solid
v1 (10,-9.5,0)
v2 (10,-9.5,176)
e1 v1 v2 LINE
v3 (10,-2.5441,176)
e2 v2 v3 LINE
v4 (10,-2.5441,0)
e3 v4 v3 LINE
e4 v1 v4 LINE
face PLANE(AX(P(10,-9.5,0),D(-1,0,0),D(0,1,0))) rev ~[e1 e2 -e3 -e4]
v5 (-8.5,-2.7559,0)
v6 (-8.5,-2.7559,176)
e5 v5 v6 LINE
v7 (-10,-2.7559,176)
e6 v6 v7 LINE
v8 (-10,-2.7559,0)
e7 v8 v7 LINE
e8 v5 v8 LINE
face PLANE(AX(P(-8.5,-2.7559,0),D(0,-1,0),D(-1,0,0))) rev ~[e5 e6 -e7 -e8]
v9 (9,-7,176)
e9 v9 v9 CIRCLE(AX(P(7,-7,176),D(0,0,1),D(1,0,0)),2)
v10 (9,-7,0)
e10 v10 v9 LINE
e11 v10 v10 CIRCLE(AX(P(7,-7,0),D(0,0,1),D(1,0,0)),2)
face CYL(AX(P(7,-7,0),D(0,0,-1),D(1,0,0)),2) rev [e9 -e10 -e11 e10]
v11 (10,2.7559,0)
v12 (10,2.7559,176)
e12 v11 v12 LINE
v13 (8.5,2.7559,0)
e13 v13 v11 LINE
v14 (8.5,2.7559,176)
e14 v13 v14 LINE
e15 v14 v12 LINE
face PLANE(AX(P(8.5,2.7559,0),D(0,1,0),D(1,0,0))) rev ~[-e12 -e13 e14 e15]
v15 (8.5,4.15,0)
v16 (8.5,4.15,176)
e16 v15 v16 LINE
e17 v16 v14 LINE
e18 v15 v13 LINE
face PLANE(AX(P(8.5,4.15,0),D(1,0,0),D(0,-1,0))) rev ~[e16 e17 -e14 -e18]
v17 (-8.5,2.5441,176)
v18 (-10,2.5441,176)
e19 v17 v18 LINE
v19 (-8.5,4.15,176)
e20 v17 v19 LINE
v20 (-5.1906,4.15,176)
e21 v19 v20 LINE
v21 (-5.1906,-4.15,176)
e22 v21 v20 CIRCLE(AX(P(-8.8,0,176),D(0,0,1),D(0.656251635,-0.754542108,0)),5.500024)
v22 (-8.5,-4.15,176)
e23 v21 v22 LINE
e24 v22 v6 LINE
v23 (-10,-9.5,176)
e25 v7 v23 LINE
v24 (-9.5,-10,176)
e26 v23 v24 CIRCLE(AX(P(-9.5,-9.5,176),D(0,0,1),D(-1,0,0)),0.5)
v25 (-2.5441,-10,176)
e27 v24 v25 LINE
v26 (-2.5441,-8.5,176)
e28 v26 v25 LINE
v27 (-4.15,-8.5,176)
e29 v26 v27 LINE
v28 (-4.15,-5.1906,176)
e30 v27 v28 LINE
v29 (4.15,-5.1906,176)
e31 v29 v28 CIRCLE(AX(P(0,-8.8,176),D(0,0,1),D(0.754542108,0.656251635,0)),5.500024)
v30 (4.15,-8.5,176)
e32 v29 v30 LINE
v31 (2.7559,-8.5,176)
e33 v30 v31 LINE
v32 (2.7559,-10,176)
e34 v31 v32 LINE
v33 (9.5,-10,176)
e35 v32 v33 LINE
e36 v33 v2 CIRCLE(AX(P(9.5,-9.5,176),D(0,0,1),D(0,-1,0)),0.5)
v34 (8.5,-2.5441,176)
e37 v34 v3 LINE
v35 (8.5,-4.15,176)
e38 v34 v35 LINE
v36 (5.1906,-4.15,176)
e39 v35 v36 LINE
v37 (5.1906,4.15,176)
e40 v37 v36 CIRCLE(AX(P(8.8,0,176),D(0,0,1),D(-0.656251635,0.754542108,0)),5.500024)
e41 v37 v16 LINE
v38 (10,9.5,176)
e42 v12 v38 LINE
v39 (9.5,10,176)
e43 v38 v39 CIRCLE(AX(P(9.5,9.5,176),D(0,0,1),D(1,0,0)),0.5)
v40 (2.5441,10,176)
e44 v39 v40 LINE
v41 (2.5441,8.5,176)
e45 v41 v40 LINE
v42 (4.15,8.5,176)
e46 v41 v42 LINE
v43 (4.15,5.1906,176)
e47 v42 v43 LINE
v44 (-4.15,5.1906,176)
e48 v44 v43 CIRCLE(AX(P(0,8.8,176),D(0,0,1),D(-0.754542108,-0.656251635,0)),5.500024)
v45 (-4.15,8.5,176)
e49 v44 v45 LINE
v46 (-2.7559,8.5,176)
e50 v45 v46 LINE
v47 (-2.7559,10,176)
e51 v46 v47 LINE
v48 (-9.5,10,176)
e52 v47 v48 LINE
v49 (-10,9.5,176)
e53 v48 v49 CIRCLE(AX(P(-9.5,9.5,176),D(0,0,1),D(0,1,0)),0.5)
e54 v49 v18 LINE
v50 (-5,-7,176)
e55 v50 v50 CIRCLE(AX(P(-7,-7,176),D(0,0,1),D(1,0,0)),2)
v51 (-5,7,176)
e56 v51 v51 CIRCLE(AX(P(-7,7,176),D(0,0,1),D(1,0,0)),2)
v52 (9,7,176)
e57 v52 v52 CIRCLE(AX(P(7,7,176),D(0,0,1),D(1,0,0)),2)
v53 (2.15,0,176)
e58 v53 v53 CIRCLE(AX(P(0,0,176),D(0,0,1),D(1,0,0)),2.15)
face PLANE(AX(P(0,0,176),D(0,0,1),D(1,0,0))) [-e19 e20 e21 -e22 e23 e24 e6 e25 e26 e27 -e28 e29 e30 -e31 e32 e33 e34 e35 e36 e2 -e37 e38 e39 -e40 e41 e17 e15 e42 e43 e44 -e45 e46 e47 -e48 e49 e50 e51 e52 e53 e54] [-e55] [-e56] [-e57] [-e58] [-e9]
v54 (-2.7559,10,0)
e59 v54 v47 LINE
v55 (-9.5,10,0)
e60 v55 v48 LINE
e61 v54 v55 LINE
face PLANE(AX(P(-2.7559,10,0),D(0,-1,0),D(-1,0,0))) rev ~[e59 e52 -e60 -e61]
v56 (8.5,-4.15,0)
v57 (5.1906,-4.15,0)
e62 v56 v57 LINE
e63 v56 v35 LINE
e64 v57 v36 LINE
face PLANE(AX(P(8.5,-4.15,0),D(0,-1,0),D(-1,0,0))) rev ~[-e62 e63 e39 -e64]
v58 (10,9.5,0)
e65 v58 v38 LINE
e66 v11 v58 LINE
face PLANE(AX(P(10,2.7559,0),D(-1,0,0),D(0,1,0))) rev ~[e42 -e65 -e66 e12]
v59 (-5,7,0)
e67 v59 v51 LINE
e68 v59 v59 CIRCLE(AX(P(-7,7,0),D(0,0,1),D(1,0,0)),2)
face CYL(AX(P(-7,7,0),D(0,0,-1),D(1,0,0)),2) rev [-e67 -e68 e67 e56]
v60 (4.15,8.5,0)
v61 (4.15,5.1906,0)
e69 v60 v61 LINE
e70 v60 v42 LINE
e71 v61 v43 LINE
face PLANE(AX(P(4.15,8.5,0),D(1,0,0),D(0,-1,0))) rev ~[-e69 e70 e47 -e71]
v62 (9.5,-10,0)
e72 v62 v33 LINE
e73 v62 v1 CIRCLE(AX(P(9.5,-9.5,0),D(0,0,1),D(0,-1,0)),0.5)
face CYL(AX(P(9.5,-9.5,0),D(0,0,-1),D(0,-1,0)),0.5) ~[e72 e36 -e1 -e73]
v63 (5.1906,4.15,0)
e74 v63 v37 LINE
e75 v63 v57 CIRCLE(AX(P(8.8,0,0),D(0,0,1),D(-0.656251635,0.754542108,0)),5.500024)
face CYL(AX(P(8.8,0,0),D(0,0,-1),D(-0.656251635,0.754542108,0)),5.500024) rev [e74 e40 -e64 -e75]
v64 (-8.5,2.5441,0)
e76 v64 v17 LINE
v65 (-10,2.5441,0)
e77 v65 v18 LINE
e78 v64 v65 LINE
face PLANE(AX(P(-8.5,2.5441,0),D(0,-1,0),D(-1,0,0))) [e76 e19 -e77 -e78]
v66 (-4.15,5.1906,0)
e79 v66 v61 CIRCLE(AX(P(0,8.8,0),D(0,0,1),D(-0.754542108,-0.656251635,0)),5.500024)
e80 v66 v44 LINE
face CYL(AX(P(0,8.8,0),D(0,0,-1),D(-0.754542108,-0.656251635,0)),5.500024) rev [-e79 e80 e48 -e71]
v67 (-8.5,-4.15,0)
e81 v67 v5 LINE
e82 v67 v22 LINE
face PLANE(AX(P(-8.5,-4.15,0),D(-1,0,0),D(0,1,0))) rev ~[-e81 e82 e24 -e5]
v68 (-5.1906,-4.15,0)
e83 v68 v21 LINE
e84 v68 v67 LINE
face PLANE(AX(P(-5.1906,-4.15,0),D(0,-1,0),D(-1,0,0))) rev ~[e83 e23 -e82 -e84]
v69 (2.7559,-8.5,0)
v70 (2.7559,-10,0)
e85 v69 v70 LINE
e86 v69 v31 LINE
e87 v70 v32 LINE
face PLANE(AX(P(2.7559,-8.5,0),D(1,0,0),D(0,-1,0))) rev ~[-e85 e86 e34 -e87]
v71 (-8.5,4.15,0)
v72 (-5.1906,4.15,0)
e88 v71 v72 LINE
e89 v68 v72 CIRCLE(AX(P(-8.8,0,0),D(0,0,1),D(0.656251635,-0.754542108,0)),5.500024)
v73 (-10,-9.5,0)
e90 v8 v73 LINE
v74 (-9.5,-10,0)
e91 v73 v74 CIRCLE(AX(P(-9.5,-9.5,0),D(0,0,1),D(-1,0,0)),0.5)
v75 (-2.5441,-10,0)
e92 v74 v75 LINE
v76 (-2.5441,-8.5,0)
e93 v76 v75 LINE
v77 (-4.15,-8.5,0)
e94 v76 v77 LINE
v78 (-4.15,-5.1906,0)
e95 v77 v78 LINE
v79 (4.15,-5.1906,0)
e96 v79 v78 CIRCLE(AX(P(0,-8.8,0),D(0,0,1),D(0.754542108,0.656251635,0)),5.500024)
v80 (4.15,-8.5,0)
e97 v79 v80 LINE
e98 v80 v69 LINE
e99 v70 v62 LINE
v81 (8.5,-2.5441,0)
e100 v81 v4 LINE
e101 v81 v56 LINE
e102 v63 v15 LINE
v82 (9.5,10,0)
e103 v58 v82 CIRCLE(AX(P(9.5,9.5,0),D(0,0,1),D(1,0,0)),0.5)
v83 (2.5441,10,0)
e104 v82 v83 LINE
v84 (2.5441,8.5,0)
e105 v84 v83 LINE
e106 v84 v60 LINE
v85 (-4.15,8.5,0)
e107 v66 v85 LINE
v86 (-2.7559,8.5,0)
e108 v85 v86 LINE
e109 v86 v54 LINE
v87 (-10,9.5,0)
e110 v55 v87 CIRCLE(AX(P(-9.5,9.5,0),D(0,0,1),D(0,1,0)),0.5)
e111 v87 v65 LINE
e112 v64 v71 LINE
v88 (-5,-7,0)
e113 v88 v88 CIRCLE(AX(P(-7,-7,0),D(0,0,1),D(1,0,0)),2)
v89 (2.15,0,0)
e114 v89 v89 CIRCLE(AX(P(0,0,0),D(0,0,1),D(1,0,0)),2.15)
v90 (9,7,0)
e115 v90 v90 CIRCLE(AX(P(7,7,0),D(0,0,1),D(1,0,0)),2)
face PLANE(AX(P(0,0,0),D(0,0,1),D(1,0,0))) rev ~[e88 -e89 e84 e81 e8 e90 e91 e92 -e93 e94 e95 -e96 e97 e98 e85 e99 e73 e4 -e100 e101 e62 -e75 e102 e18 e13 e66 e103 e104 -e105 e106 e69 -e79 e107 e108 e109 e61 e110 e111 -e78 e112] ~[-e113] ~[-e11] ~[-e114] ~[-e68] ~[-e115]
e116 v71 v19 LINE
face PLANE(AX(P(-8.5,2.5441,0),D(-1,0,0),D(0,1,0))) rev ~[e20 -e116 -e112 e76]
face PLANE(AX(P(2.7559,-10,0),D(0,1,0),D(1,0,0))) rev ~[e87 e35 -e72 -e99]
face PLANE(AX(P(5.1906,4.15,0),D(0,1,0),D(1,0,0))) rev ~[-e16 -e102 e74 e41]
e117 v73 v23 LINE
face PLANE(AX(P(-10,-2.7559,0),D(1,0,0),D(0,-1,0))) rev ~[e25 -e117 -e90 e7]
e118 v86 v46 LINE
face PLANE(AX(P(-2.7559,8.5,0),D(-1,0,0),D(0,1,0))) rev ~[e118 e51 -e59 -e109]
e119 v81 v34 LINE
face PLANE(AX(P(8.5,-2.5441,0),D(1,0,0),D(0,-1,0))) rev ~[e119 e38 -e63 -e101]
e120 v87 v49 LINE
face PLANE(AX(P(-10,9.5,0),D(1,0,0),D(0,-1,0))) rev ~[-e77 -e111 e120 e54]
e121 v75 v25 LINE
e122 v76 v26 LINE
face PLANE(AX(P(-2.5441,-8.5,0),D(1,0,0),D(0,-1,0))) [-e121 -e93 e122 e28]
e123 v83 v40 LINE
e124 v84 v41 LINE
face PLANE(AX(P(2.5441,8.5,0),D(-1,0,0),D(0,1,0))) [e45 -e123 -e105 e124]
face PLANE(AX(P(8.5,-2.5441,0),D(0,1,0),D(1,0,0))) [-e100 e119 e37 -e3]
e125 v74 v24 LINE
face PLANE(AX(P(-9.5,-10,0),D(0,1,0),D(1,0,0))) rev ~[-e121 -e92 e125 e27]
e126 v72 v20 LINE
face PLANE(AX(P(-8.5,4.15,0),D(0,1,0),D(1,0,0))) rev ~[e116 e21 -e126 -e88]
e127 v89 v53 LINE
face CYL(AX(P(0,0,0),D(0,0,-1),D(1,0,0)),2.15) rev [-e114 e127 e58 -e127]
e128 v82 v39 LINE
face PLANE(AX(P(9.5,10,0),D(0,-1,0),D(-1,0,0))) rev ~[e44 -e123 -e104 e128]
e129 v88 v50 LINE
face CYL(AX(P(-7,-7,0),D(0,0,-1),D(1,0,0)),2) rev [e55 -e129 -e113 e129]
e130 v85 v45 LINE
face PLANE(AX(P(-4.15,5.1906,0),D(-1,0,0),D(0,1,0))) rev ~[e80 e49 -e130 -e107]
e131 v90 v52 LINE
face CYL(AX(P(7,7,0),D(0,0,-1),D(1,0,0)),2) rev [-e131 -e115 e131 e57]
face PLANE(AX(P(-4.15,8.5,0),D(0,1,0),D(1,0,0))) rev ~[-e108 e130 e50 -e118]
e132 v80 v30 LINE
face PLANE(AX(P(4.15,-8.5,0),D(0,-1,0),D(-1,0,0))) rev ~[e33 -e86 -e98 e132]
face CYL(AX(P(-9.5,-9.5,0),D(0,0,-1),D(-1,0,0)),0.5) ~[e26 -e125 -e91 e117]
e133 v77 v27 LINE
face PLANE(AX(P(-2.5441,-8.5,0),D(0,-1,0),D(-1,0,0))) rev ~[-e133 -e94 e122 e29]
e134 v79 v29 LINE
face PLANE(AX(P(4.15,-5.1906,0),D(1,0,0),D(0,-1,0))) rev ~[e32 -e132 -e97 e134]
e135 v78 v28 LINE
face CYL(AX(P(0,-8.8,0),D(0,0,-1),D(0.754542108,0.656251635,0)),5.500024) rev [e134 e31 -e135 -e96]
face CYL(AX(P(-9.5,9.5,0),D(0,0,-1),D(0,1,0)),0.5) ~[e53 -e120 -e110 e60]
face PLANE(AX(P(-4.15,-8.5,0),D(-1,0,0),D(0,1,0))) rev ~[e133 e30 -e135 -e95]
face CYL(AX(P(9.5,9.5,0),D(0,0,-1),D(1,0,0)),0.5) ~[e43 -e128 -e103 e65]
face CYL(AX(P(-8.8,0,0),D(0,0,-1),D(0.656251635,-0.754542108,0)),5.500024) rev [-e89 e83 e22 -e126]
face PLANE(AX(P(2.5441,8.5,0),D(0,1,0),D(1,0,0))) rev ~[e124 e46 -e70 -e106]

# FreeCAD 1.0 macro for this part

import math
import FreeCAD as App
import Part
import Sketcher
from FreeCAD import Vector
Q = App.Units.Quantity

doc = App.newDocument("Part")
body = doc.addObject("PartDesign::Body", "Body")

# Sketch on XY plane
sketch1 = doc.addObject("Sketcher::SketchObject", "Sketch")
body.addObject(sketch1)
sketch1.AttachmentSupport = (doc.XY_Plane, [""])
sketch1.MapMode = "FlatFace"
sketch1.addGeometry([
    Part.LineSegment(Vector(-10, -2.8, 0), Vector(-10, -9.5, 0)),  # 0
    Part.ArcOfCircle(Part.Circle(Vector(-9.5, -9.5, 0), Vector(0, 0, 1), 0.5), math.radians(180), math.radians(270)),  # 1
    Part.LineSegment(Vector(-9.5, -10, 0), Vector(-2.5, -10, 0)),  # 2
    Part.LineSegment(Vector(-2.5, -10, 0), Vector(-2.5, -8.5, 0)),  # 3
    Part.LineSegment(Vector(-2.5, -8.5, 0), Vector(-4.2, -8.5, 0)),  # 4
    Part.LineSegment(Vector(-4.2, -8.5, 0), Vector(-4.2, -5.2, 0)),  # 5
    Part.ArcOfCircle(Part.Circle(Vector(0, -8.8, 0), Vector(0, 0, 1), 5.5), math.radians(41), math.radians(139)),  # 6
    Part.LineSegment(Vector(4.2, -5.2, 0), Vector(4.2, -8.5, 0)),  # 7
    Part.LineSegment(Vector(4.2, -8.5, 0), Vector(2.8, -8.5, 0)),  # 8
    Part.LineSegment(Vector(2.8, -8.5, 0), Vector(2.8, -10, 0)),  # 9
    Part.LineSegment(Vector(2.8, -10, 0), Vector(9.5, -10, 0)),  # 10
    Part.ArcOfCircle(Part.Circle(Vector(9.5, -9.5, 0), Vector(0, 0, 1), 0.5), math.radians(-90), math.radians(0)),  # 11
    Part.LineSegment(Vector(10, -9.5, 0), Vector(10, -2.5, 0)),  # 12
    Part.LineSegment(Vector(10, -2.5, 0), Vector(8.5, -2.5, 0)),  # 13
    Part.LineSegment(Vector(8.5, -2.5, 0), Vector(8.5, -4.2, 0)),  # 14
    Part.LineSegment(Vector(8.5, -4.2, 0), Vector(5.2, -4.2, 0)),  # 15
    Part.ArcOfCircle(Part.Circle(Vector(8.8, 0, 0), Vector(0, 0, 1), 5.5), math.radians(131), math.radians(229)),  # 16
    Part.LineSegment(Vector(5.2, 4.2, 0), Vector(8.5, 4.2, 0)),  # 17
    Part.LineSegment(Vector(8.5, 4.2, 0), Vector(8.5, 2.8, 0)),  # 18
    Part.LineSegment(Vector(8.5, 2.8, 0), Vector(10, 2.8, 0)),  # 19
    Part.LineSegment(Vector(10, 2.8, 0), Vector(10, 9.5, 0)),  # 20
    Part.ArcOfCircle(Part.Circle(Vector(9.5, 9.5, 0), Vector(0, 0, 1), 0.5), math.radians(0), math.radians(90)),  # 21
    Part.LineSegment(Vector(9.5, 10, 0), Vector(2.5, 10, 0)),  # 22
    Part.LineSegment(Vector(2.5, 10, 0), Vector(2.5, 8.5, 0)),  # 23
    Part.LineSegment(Vector(2.5, 8.5, 0), Vector(4.2, 8.5, 0)),  # 24
    Part.LineSegment(Vector(4.2, 8.5, 0), Vector(4.2, 5.2, 0)),  # 25
    Part.ArcOfCircle(Part.Circle(Vector(0, 8.8, 0), Vector(0, 0, 1), 5.5), math.radians(-139), math.radians(-41)),  # 26
    Part.LineSegment(Vector(-4.2, 5.2, 0), Vector(-4.2, 8.5, 0)),  # 27
    Part.LineSegment(Vector(-4.2, 8.5, 0), Vector(-2.8, 8.5, 0)),  # 28
    Part.LineSegment(Vector(-2.8, 8.5, 0), Vector(-2.8, 10, 0)),  # 29
    Part.LineSegment(Vector(-2.8, 10, 0), Vector(-9.5, 10, 0)),  # 30
    Part.ArcOfCircle(Part.Circle(Vector(-9.5, 9.5, 0), Vector(0, 0, 1), 0.5), math.radians(90), math.radians(180)),  # 31
    Part.LineSegment(Vector(-10, 9.5, 0), Vector(-10, 2.5, 0)),  # 32
    Part.LineSegment(Vector(-10, 2.5, 0), Vector(-8.5, 2.5, 0)),  # 33
    Part.LineSegment(Vector(-8.5, 2.5, 0), Vector(-8.5, 4.2, 0)),  # 34
    Part.LineSegment(Vector(-8.5, 4.2, 0), Vector(-5.2, 4.2, 0)),  # 35
    Part.ArcOfCircle(Part.Circle(Vector(-8.8, 0, 0), Vector(0, 0, 1), 5.5), math.radians(-49), math.radians(49)),  # 36
    Part.LineSegment(Vector(-5.2, -4.2, 0), Vector(-8.5, -4.2, 0)),  # 37
    Part.LineSegment(Vector(-8.5, -4.2, 0), Vector(-8.5, -2.8, 0)),  # 38
    Part.LineSegment(Vector(-8.5, -2.8, 0), Vector(-10, -2.8, 0)),  # 39
    Part.Circle(Vector(-7, -7, 0), Vector(0, 0, 1), 2),  # 40
    Part.Circle(Vector(7, -7, 0), Vector(0, 0, 1), 2),  # 41
    Part.Circle(Vector(-7, 7, 0), Vector(0, 0, 1), 2),  # 42
    Part.Circle(Vector(0, 0, 0), Vector(0, 0, 1), 2.1),  # 43
    Part.Circle(Vector(7, 7, 0), Vector(0, 0, 1), 2),  # 44
], False)
sketch1.addConstraint([
    Sketcher.Constraint("Tangent", 0, 2, 1, 1),
    Sketcher.Constraint("Tangent", 1, 2, 2, 1),
    Sketcher.Constraint("Coincident", 2, 2, 3, 1),
    Sketcher.Constraint("Coincident", 3, 2, 4, 1),
    Sketcher.Constraint("Coincident", 4, 2, 5, 1),
    Sketcher.Constraint("Coincident", 5, 2, 6, 2),
    Sketcher.Constraint("Coincident", 6, 1, 7, 1),
    Sketcher.Constraint("Coincident", 7, 2, 8, 1),
    Sketcher.Constraint("Coincident", 8, 2, 9, 1),
    Sketcher.Constraint("Coincident", 9, 2, 10, 1),
    Sketcher.Constraint("Tangent", 10, 2, 11, 1),
    Sketcher.Constraint("Tangent", 11, 2, 12, 1),
    Sketcher.Constraint("Coincident", 12, 2, 13, 1),
    Sketcher.Constraint("Coincident", 13, 2, 14, 1),
    Sketcher.Constraint("Coincident", 14, 2, 15, 1),
    Sketcher.Constraint("Coincident", 15, 2, 16, 2),
    Sketcher.Constraint("Coincident", 16, 1, 17, 1),
    Sketcher.Constraint("Coincident", 17, 2, 18, 1),
    Sketcher.Constraint("Coincident", 18, 2, 19, 1),
    Sketcher.Constraint("Coincident", 19, 2, 20, 1),
    Sketcher.Constraint("Tangent", 20, 2, 21, 1),
    Sketcher.Constraint("Tangent", 21, 2, 22, 1),
    Sketcher.Constraint("Coincident", 22, 2, 23, 1),
    Sketcher.Constraint("Coincident", 23, 2, 24, 1),
    Sketcher.Constraint("Coincident", 24, 2, 25, 1),
    Sketcher.Constraint("Coincident", 25, 2, 26, 2),
    Sketcher.Constraint("Coincident", 26, 1, 27, 1),
    Sketcher.Constraint("Coincident", 27, 2, 28, 1),
    Sketcher.Constraint("Coincident", 28, 2, 29, 1),
    Sketcher.Constraint("Coincident", 29, 2, 30, 1),
    Sketcher.Constraint("Tangent", 30, 2, 31, 1),
    Sketcher.Constraint("Tangent", 31, 2, 32, 1),
    Sketcher.Constraint("Coincident", 32, 2, 33, 1),
    Sketcher.Constraint("Coincident", 33, 2, 34, 1),
    Sketcher.Constraint("Coincident", 34, 2, 35, 1),
    Sketcher.Constraint("Coincident", 35, 2, 36, 2),
    Sketcher.Constraint("Coincident", 36, 1, 37, 1),
    Sketcher.Constraint("Coincident", 37, 2, 38, 1),
    Sketcher.Constraint("Coincident", 38, 2, 39, 1),
    Sketcher.Constraint("Coincident", 39, 2, 0, 1),
    Sketcher.Constraint("Vertical", 0),
    Sketcher.Constraint("Horizontal", 2),
    Sketcher.Constraint("Vertical", 3),
    Sketcher.Constraint("Horizontal", 4),
    Sketcher.Constraint("Vertical", 5),
    Sketcher.Constraint("Vertical", 7),
    Sketcher.Constraint("Horizontal", 8),
    Sketcher.Constraint("Vertical", 9),
    Sketcher.Constraint("Horizontal", 10),
    Sketcher.Constraint("Vertical", 12),
    Sketcher.Constraint("Horizontal", 13),
    Sketcher.Constraint("Vertical", 14),
    Sketcher.Constraint("Horizontal", 15),
    Sketcher.Constraint("Horizontal", 17),
    Sketcher.Constraint("Vertical", 18),
    Sketcher.Constraint("Horizontal", 19),
    Sketcher.Constraint("Vertical", 20),
    Sketcher.Constraint("Horizontal", 22),
    Sketcher.Constraint("Vertical", 23),
    Sketcher.Constraint("Horizontal", 24),
    Sketcher.Constraint("Vertical", 25),
    Sketcher.Constraint("Vertical", 27),
    Sketcher.Constraint("Horizontal", 28),
    Sketcher.Constraint("Vertical", 29),
    Sketcher.Constraint("Horizontal", 30),
    Sketcher.Constraint("Vertical", 32),
    Sketcher.Constraint("Horizontal", 33),
    Sketcher.Constraint("Vertical", 34),
    Sketcher.Constraint("Horizontal", 35),
    Sketcher.Constraint("Horizontal", 37),
    Sketcher.Constraint("Vertical", 38),
    Sketcher.Constraint("Horizontal", 39),
    Sketcher.Constraint("Coincident", 43, 3, -1, 1),
    Sketcher.Constraint("Equal", 1, 11),
    Sketcher.Constraint("Equal", 6, 16),
    Sketcher.Constraint("Equal", 11, 21),
    Sketcher.Constraint("Equal", 16, 26),
    Sketcher.Constraint("Equal", 21, 31),
    Sketcher.Constraint("Equal", 26, 36),
    Sketcher.Constraint("Equal", 40, 41),
    Sketcher.Constraint("Equal", 41, 42),
    Sketcher.Constraint("Equal", 42, 44),
    Sketcher.Constraint("Symmetric", 1, 3, 21, 3, -1, 1),
    Sketcher.Constraint("Symmetric", 6, 3, 26, 3, -1, 1),
    Sketcher.Constraint("Symmetric", 11, 3, 31, 3, -1, 1),
    Sketcher.Constraint("Symmetric", 16, 3, 36, 3, -1, 1),
    Sketcher.Constraint("Symmetric", 41, 3, 42, 3, -1, 1),
    Sketcher.Constraint("Symmetric", 40, 3, 44, 3, -1, 1),
    Sketcher.Constraint("Symmetric", 3, 2, 23, 2, -1, 1),
    Sketcher.Constraint("Symmetric", 7, 2, 27, 2, -1, 1),
    Sketcher.Constraint("Symmetric", 13, 2, 33, 2, -1, 1),
    Sketcher.Constraint("Symmetric", 17, 2, 37, 2, -1, 1),
    Sketcher.Constraint("Symmetric", 1, 3, 11, 3, -2),
    Sketcher.Constraint("Symmetric", 40, 3, 41, 3, -2),
    Sketcher.Constraint("Symmetric", 5, 2, 6, 1, -2),
    Sketcher.Constraint("Symmetric", 24, 2, 27, 2, -2),
    Sketcher.Constraint("Symmetric", 17, 2, 34, 2, -2),
    Sketcher.Constraint("Symmetric", 15, 2, 36, 1, -2),
    Sketcher.Constraint("Equal", 8, 28),
    Sketcher.Constraint("Equal", 30, 0),
    Sketcher.Constraint("Equal", 39, 3),
    Sketcher.Constraint("Equal", 37, 5),
    Sketcher.Constraint("Equal", 22, 12),
    Sketcher.Constraint("Equal", 24, 14),
    Sketcher.Constraint("Equal", 28, 18),
    Sketcher.Constraint("Diameter", 40, Q("4 mm")),
    Sketcher.Constraint("Diameter", 43, Q("4.3 mm")),
    Sketcher.Constraint("Radius", 1, Q("0.5 mm")),
    Sketcher.Constraint("Radius", 6, Q("5.5 mm")),
    Sketcher.Constraint("DistanceX", 13, 2, 13, 1, Q("1.5 mm")),
    Sketcher.Constraint("DistanceX", 40, 3, 41, 3, Q("14 mm")),
    Sketcher.Constraint("DistanceY", 40, 3, 42, 3, Q("14 mm")),
    Sketcher.Constraint("DistanceY", 3, 2, 40, 3, Q("1.5 mm")),
    Sketcher.Constraint("DistanceX", 3, 2, 8, 2, Q("5.3 mm")),
    Sketcher.Constraint("DistanceX", 41, 3, 13, 2, Q("1.5 mm")),
    Sketcher.Constraint("DistanceY", 6, 3, -1, 1, Q("8.8 mm")),
    Sketcher.Constraint("DistanceX", 2, 1, 2, 2, Q("6.956 mm")),
    Sketcher.Constraint("DistanceX", 4, 2, 4, 1, Q("1.606 mm")),
])
pad1 = doc.addObject("PartDesign::Pad", "Pad")
body.addObject(pad1)
pad1.Profile = sketch1
pad1.Length = 176

doc.recompute()
